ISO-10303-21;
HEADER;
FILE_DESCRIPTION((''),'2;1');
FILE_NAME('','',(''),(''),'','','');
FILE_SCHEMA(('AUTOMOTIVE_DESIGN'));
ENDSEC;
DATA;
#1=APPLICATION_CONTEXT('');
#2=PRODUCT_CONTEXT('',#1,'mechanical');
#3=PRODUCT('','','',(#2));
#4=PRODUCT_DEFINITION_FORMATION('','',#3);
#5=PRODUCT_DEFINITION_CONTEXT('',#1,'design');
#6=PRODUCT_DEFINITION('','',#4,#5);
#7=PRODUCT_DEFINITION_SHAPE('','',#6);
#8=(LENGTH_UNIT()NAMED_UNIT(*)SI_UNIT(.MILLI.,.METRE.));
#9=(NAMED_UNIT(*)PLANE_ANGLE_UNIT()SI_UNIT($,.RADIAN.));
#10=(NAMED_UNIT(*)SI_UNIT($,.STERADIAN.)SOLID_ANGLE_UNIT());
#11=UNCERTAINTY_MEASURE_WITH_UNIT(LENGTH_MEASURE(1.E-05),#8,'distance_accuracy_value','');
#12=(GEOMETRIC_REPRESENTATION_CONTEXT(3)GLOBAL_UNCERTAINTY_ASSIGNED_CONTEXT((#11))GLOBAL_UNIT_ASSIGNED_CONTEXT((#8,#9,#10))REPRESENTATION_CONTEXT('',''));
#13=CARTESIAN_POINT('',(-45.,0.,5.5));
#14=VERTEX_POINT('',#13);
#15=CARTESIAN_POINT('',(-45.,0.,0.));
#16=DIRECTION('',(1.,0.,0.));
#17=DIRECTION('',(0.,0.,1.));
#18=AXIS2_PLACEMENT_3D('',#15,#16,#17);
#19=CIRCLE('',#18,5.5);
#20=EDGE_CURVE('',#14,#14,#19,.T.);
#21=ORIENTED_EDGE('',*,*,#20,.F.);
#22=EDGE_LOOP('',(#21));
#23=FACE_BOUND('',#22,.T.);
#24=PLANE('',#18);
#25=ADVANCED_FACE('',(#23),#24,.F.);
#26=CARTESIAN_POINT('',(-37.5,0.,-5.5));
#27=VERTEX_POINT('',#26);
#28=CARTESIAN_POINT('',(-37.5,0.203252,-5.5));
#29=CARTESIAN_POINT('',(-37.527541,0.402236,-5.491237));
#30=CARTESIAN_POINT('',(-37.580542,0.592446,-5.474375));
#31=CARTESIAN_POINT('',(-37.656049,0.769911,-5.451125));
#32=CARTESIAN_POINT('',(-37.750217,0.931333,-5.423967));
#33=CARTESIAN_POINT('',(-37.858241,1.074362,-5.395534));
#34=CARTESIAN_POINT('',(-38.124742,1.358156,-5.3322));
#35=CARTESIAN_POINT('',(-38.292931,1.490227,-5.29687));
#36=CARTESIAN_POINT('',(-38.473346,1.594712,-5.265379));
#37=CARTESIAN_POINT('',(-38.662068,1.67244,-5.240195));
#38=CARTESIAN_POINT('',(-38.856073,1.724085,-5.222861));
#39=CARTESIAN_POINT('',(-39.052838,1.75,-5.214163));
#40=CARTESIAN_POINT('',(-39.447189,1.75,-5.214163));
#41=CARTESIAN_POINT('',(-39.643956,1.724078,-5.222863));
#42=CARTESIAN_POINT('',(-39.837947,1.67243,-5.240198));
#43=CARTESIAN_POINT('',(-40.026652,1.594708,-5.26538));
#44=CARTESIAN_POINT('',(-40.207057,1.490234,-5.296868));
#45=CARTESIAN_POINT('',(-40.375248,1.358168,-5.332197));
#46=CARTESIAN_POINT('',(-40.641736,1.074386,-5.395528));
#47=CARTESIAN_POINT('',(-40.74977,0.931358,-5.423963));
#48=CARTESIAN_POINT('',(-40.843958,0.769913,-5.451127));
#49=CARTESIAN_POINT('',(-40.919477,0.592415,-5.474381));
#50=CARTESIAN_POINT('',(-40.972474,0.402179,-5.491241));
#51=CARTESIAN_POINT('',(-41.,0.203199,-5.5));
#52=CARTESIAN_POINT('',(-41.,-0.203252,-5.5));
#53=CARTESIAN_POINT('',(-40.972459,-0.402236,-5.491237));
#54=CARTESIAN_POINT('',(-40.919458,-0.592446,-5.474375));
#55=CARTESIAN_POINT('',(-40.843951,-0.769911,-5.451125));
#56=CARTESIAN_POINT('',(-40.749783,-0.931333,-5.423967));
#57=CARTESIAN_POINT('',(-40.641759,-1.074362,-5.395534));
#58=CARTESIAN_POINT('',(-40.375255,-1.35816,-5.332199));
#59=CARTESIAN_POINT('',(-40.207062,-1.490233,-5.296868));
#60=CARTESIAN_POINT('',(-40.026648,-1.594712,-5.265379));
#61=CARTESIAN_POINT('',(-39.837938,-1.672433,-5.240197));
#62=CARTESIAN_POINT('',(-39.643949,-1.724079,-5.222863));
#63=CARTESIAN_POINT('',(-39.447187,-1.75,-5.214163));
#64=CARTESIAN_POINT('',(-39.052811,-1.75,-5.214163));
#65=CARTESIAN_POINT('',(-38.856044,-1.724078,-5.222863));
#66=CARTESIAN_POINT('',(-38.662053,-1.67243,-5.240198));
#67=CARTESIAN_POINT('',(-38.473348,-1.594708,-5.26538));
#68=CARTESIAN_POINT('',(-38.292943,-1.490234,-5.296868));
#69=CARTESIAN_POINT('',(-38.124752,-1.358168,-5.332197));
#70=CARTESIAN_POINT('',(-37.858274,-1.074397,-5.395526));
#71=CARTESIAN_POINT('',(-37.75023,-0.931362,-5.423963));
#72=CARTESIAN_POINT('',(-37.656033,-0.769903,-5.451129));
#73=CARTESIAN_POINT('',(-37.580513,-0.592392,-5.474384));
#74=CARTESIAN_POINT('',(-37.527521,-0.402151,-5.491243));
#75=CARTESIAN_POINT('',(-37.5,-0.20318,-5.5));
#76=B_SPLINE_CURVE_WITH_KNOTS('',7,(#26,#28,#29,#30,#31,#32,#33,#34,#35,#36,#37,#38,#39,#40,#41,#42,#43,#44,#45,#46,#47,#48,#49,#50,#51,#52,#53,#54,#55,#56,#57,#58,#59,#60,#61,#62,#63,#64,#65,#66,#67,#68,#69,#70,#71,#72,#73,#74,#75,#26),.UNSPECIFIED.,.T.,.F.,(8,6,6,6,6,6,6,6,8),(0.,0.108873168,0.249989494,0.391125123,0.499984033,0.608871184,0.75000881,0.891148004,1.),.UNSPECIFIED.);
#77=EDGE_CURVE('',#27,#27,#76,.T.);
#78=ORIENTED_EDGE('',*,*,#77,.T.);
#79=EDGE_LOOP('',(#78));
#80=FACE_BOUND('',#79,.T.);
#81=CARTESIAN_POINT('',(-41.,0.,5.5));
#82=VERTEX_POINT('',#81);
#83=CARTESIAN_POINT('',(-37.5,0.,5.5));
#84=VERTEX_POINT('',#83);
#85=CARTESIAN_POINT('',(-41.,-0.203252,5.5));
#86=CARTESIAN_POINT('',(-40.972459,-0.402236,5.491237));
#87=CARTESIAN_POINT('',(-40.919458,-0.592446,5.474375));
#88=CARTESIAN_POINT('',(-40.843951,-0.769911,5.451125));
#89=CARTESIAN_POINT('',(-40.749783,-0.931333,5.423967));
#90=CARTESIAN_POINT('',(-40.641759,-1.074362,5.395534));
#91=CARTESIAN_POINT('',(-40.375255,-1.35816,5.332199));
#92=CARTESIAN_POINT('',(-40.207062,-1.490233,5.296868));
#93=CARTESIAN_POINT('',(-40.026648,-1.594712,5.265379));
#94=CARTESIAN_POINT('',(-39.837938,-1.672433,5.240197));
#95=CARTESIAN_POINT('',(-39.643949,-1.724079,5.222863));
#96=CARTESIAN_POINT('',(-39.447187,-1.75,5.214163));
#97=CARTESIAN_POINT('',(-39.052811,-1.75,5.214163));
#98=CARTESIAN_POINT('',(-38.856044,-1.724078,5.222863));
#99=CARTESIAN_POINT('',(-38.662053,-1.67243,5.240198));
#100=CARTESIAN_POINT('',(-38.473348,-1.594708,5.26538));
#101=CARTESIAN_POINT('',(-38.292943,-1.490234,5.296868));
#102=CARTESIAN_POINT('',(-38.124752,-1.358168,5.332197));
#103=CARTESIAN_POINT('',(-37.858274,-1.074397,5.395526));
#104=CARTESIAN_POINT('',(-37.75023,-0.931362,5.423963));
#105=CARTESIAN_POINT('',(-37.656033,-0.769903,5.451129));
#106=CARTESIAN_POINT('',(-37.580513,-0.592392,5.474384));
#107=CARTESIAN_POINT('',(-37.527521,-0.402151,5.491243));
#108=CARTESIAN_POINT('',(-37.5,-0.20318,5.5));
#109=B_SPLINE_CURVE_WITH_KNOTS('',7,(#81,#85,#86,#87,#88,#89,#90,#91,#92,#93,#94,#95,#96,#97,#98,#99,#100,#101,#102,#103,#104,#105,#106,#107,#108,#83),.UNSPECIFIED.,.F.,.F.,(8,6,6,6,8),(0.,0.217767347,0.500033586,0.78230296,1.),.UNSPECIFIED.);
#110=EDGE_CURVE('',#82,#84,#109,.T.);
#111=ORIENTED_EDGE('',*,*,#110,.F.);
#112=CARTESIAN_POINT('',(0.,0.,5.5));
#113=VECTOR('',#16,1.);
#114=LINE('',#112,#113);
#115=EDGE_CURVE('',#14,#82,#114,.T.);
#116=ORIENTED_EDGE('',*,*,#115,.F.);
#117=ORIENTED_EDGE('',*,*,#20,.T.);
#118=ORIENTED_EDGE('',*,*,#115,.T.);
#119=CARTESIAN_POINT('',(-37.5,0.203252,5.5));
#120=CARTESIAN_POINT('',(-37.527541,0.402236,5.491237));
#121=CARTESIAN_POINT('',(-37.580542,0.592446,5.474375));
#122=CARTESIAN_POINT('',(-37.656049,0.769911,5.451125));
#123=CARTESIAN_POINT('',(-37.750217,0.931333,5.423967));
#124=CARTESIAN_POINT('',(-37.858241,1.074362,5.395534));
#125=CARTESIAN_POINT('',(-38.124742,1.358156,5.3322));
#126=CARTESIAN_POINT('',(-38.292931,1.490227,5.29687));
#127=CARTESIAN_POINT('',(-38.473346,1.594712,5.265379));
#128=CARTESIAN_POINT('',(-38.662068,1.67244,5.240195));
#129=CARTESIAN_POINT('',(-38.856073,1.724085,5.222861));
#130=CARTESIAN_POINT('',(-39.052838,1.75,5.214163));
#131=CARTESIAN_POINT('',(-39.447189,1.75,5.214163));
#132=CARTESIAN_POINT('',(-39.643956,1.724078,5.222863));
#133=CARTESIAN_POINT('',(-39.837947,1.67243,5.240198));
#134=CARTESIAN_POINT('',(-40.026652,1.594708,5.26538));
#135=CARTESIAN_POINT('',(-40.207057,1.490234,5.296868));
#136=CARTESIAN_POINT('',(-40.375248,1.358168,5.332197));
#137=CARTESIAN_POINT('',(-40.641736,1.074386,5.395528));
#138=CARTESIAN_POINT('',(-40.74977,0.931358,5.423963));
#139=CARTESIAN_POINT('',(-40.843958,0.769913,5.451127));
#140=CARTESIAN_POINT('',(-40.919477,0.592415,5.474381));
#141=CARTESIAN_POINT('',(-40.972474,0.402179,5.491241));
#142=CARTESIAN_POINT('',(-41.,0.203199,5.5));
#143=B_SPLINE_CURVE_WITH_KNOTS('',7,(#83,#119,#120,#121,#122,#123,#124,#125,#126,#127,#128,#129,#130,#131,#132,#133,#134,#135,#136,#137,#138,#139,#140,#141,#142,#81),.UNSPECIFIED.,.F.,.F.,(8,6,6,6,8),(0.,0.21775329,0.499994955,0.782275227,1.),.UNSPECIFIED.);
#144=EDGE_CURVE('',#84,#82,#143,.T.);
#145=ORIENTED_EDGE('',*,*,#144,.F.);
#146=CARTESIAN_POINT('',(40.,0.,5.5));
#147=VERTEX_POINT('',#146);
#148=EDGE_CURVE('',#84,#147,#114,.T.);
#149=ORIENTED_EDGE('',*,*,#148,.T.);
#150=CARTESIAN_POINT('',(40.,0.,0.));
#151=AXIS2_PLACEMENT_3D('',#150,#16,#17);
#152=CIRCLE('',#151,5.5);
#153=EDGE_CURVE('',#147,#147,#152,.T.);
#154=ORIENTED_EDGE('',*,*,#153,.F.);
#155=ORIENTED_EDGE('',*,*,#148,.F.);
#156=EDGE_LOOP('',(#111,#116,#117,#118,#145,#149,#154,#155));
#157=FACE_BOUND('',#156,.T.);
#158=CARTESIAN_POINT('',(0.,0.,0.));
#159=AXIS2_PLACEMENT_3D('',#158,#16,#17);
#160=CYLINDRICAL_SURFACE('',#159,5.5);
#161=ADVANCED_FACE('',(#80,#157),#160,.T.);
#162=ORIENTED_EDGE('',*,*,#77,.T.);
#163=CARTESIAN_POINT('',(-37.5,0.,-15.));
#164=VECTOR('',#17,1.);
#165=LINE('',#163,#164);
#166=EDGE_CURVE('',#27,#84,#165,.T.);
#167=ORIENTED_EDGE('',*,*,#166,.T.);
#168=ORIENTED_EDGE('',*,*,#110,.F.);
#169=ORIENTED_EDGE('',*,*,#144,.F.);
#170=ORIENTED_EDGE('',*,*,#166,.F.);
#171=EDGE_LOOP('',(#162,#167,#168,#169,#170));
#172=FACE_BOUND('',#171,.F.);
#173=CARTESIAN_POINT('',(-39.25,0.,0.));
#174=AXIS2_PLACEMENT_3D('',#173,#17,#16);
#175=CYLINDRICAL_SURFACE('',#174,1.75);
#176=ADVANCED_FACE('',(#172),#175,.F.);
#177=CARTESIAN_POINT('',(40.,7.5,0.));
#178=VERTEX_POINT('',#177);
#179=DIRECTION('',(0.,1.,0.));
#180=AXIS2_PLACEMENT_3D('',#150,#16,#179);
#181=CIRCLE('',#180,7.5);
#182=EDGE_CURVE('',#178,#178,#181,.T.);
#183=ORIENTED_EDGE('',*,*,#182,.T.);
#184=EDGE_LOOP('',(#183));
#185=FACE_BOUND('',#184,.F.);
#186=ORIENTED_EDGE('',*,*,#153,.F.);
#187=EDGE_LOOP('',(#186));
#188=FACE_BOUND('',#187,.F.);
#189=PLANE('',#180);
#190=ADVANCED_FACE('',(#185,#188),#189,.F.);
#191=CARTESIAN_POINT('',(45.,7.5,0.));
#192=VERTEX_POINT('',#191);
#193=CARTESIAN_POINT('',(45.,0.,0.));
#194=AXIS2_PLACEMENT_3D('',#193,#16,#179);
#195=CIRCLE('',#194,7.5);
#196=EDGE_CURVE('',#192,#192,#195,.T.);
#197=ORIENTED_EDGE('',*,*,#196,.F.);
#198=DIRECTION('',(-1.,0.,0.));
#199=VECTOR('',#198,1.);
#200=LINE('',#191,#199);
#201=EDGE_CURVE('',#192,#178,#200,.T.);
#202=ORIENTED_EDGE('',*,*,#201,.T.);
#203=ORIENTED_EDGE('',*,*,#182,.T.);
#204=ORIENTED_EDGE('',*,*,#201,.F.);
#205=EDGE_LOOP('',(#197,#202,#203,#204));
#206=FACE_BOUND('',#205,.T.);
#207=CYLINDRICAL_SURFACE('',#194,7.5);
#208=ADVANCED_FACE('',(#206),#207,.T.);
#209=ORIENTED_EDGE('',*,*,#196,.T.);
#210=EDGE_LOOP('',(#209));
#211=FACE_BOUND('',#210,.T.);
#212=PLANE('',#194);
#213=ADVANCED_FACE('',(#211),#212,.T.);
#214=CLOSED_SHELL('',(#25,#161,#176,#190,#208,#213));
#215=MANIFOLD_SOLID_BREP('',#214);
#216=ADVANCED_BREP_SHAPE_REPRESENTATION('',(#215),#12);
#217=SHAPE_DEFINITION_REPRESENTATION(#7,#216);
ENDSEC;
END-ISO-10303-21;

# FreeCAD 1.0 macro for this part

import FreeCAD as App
import Part
import Sketcher

V = App.Vector
Q = App.Units.Quantity


def add_polygon(sketch, points):
    """Adds a closed chain of lines whose ends are joined by coincident constraints."""
    first, n = sketch.GeometryCount, len(points)
    for a, b in zip(points, points[1:] + points[:1]):
        sketch.addGeometry(Part.LineSegment(App.Vector(*a, 0), App.Vector(*b, 0)), False)
    for i in range(n):
        sketch.addConstraint(Sketcher.Constraint("Coincident", first + i, 2, first + (i + 1) % n, 1))

doc = App.newDocument("Part")
params = doc.addObject("Spreadsheet::Sheet", "Params")
for row, (alias, value) in enumerate([
    ("sketch1_width", "90 mm"),
    ("sketch1_height", "5.5 mm"),
    ("revolution_angle", "360 deg"),
    ("sketch2_diameter", "3.5 mm"),
    ("pocket1_length", "30 mm"),
    ("sketch3_diameter", "15 mm"),
    ("sketch3_diameter2", "11 mm"),
    ("pad1_length", "5 mm"),
], start=1):
    params.set(f"A{row}", alias)
    params.set(f"B{row}", "=" + value)
    params.setAlias(f"B{row}", alias)

body = doc.addObject("PartDesign::Body", "Body")

# Sketch on XZ plane
sketch1 = doc.addObject("Sketcher::SketchObject", "Sketch")
body.addObject(sketch1)
sketch1.AttachmentSupport = (doc.XZ_Plane, [""])
sketch1.MapMode = "FlatFace"
add_polygon(sketch1, [(-45, 6), (-45, 0), (45, 0), (45, 6)])  # lines 0-3
sketch1.addConstraint(Sketcher.Constraint("Vertical", 0))
sketch1.addConstraint(Sketcher.Constraint("Horizontal", 1))
sketch1.addConstraint(Sketcher.Constraint("Vertical", 2))
sketch1.addConstraint(Sketcher.Constraint("Horizontal", 3))
sketch1.addConstraint(Sketcher.Constraint("Symmetric", 0, 2, 1, 2, -1, 1))
sketch1.addConstraint(Sketcher.Constraint("DistanceX", 1, 1, 1, 2, Q("90 mm")))
sketch1.addConstraint(Sketcher.Constraint("DistanceY", 0, 2, 0, 1, Q("5.5 mm")))
sketch1.setExpression("Constraints[9]", "Params.sketch1_width")
sketch1.setExpression("Constraints[10]", "Params.sketch1_height")
revolution = doc.addObject("PartDesign::Revolution", "Revolution")
body.addObject(revolution)
revolution.Profile = sketch1
revolution.ReferenceAxis = (sketch1, ["H_Axis"])
revolution.setExpression("Angle", "Params.revolution_angle")

# Sketch on XY plane
sketch2 = doc.addObject("Sketcher::SketchObject", "Sketch001")
body.addObject(sketch2)
sketch2.AttachmentSupport = (doc.XY_Plane, [""])
sketch2.MapMode = "FlatFace"
sketch2.addGeometry(Part.Circle(V(-39.2, 0, 0), V(0, 0, 1), 1.8), False)
sketch2.addConstraint(Sketcher.Constraint("PointOnObject", 0, 3, -1))
sketch2.addConstraint(Sketcher.Constraint("Diameter", 0, Q("3.5 mm")))
sketch2.addConstraint(Sketcher.Constraint("DistanceX", 0, 3, -1, 1, Q("39.25 mm")))
sketch2.setExpression("Constraints[1]", "Params.sketch2_diameter")
pocket1 = doc.addObject("PartDesign::Pocket", "Pocket")
body.addObject(pocket1)
pocket1.Profile = sketch2
pocket1.setExpression("Length", "Params.pocket1_length")
pocket1.Midplane = True

# Sketch on YZ plane
sketch3 = doc.addObject("Sketcher::SketchObject", "Sketch002")
body.addObject(sketch3)
sketch3.AttachmentSupport = (doc.YZ_Plane, [""])
sketch3.MapMode = "FlatFace"
sketch3.AttachmentOffset = App.Placement(V(0, 0, 45), App.Rotation())
sketch3.addGeometry(Part.Circle(V(0, 0, 0), V(0, 0, 1), 8), False)
sketch3.addGeometry(Part.Circle(V(0, 0, 0), V(0, 0, 1), 6), False)
sketch3.addConstraint(Sketcher.Constraint("Coincident", 0, 3, -1, 1))
sketch3.addConstraint(Sketcher.Constraint("Coincident", 1, 3, -1, 1))
sketch3.addConstraint(Sketcher.Constraint("Diameter", 0, Q("15 mm")))
sketch3.addConstraint(Sketcher.Constraint("Diameter", 1, Q("11 mm")))
sketch3.setExpression("Constraints[2]", "Params.sketch3_diameter")
sketch3.setExpression("Constraints[3]", "Params.sketch3_diameter2")
pad1 = doc.addObject("PartDesign::Pad", "Pad")
body.addObject(pad1)
pad1.Profile = sketch3
pad1.setExpression("Length", "Params.pad1_length")
pad1.Reversed = True

doc.recompute()
